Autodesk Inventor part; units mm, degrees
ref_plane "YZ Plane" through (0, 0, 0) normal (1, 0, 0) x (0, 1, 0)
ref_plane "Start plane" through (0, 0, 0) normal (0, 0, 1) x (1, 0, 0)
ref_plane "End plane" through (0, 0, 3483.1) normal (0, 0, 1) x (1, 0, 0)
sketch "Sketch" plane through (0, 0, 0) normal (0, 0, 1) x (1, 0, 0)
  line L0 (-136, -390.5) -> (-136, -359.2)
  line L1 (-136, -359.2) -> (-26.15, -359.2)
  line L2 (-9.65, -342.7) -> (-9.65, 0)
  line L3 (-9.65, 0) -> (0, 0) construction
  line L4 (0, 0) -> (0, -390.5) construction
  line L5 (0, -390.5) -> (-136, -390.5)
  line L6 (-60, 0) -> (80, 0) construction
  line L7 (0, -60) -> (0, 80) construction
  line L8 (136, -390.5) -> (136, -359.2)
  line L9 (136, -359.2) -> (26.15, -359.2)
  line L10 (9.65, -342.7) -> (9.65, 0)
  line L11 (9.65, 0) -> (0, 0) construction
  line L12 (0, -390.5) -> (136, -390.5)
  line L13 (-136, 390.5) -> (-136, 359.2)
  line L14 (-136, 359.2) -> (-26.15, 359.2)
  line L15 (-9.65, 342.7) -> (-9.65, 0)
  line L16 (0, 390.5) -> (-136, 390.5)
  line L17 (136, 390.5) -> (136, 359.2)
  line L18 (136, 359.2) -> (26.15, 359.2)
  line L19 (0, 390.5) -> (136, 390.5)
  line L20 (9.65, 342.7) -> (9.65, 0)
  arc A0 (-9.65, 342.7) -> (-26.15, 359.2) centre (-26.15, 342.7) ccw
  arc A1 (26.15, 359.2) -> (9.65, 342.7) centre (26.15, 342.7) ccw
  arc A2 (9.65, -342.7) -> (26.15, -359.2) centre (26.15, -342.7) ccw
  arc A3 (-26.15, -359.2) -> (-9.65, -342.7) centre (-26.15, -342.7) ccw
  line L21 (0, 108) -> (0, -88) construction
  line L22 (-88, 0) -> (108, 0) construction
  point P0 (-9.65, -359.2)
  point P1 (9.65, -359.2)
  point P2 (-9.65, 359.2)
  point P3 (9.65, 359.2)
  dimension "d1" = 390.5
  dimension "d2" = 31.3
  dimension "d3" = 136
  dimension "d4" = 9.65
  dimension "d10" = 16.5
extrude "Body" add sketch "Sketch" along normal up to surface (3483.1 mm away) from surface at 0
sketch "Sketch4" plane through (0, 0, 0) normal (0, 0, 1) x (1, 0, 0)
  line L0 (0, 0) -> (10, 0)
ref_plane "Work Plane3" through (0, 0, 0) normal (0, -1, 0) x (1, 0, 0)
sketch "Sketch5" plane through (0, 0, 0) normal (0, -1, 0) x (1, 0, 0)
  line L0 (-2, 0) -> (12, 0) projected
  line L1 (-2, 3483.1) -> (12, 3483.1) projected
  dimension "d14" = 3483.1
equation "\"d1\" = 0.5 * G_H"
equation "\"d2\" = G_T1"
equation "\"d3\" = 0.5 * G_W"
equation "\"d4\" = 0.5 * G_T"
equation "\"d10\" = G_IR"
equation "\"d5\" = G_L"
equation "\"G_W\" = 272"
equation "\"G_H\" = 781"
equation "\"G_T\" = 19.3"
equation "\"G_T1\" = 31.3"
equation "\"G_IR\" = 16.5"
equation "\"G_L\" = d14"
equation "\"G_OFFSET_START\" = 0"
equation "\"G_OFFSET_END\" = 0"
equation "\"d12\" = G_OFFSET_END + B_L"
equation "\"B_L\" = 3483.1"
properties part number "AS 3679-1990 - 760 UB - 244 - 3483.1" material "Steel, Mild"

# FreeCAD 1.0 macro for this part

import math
import FreeCAD as App
import Part
import Sketcher

V = App.Vector
Q = App.Units.Quantity

doc = App.newDocument("Part")
body = doc.addObject("PartDesign::Body", "Body")

sketch1 = body.newObject("Sketcher::SketchObject", "Sketch")
sketch1.AttachmentSupport = (doc.getObject("XY_Plane"), [""])
sketch1.MapMode = "FlatFace"
sketch1.addGeometry([
    Part.LineSegment(V(-136, -359, 0), V(-136, -390, 0)),
    Part.LineSegment(V(-136, -390, 0), V(136, -390, 0)),
    Part.LineSegment(V(136, -390, 0), V(136, -359, 0)),
    Part.LineSegment(V(136, -359, 0), V(26, -359, 0)),
    Part.ArcOfCircle(Part.Circle(V(26, -343, 0), V(0, 0, 1), 16), math.radians(180), math.radians(270)),
    Part.LineSegment(V(10, -343, 0), V(10, 343, 0)),
    Part.ArcOfCircle(Part.Circle(V(26, 343, 0), V(0, 0, 1), 16), math.radians(90), math.radians(180)),
    Part.LineSegment(V(26, 359, 0), V(136, 359, 0)),
    Part.LineSegment(V(136, 359, 0), V(136, 390, 0)),
    Part.LineSegment(V(136, 390, 0), V(-136, 390, 0)),
    Part.LineSegment(V(-136, 390, 0), V(-136, 359, 0)),
    Part.LineSegment(V(-136, 359, 0), V(-26, 359, 0)),
    Part.ArcOfCircle(Part.Circle(V(-26, 343, 0), V(0, 0, 1), 16), math.radians(0), math.radians(90)),
    Part.LineSegment(V(-10, 343, 0), V(-10, -343, 0)),
    Part.ArcOfCircle(Part.Circle(V(-26, -343, 0), V(0, 0, 1), 16), math.radians(-90), math.radians(0)),
    Part.LineSegment(V(-26, -359, 0), V(-136, -359, 0)),
], False)
sketch1.addConstraint([
    Sketcher.Constraint("Coincident", 0, 2, 1, 1),
    Sketcher.Constraint("Coincident", 1, 2, 2, 1),
    Sketcher.Constraint("Coincident", 2, 2, 3, 1),
    Sketcher.Constraint("Tangent", 3, 2, 4, 2),
    Sketcher.Constraint("Tangent", 4, 1, 5, 1),
    Sketcher.Constraint("Tangent", 5, 2, 6, 2),
    Sketcher.Constraint("Tangent", 6, 1, 7, 1),
    Sketcher.Constraint("Coincident", 7, 2, 8, 1),
    Sketcher.Constraint("Coincident", 8, 2, 9, 1),
    Sketcher.Constraint("Coincident", 9, 2, 10, 1),
    Sketcher.Constraint("Coincident", 10, 2, 11, 1),
    Sketcher.Constraint("Tangent", 11, 2, 12, 2),
    Sketcher.Constraint("Tangent", 12, 1, 13, 1),
    Sketcher.Constraint("Tangent", 13, 2, 14, 2),
    Sketcher.Constraint("Tangent", 14, 1, 15, 1),
    Sketcher.Constraint("Coincident", 15, 2, 0, 1),
    Sketcher.Constraint("Vertical", 0),
    Sketcher.Constraint("Horizontal", 1),
    Sketcher.Constraint("Vertical", 2),
    Sketcher.Constraint("Horizontal", 3),
    Sketcher.Constraint("Vertical", 5),
    Sketcher.Constraint("Horizontal", 7),
    Sketcher.Constraint("Vertical", 8),
    Sketcher.Constraint("Horizontal", 9),
    Sketcher.Constraint("Vertical", 10),
    Sketcher.Constraint("Horizontal", 11),
    Sketcher.Constraint("Vertical", 13),
    Sketcher.Constraint("Horizontal", 15),
    Sketcher.Constraint("Equal", 4, 6),
    Sketcher.Constraint("Equal", 6, 12),
    Sketcher.Constraint("Equal", 12, 14),
    Sketcher.Constraint("Symmetric", 4, 3, 12, 3, -1, 1),
    Sketcher.Constraint("Symmetric", 0, 2, 8, 2, -1, 1),
    Sketcher.Constraint("Symmetric", 7, 2, 10, 2, -2),
    Sketcher.Constraint("Symmetric", 2, 2, 15, 2, -2),
    Sketcher.Constraint("Radius", 4, Q("16.5 mm")),
    Sketcher.Constraint("DistanceY", 0, 2, 0, 1, Q("31.3 mm")),
    Sketcher.Constraint("DistanceX", 0, 2, -1, 1, Q("136 mm")),
    Sketcher.Constraint("DistanceY", 0, 2, -1, 1, Q("390.5 mm")),
    Sketcher.Constraint("DistanceX", -1, 1, 4, 1, Q("9.65 mm")),
])
pad1 = body.newObject("PartDesign::Pad", "Pad")
pad1.Profile = sketch1
pad1.Length = 3483.1

doc.recompute()
